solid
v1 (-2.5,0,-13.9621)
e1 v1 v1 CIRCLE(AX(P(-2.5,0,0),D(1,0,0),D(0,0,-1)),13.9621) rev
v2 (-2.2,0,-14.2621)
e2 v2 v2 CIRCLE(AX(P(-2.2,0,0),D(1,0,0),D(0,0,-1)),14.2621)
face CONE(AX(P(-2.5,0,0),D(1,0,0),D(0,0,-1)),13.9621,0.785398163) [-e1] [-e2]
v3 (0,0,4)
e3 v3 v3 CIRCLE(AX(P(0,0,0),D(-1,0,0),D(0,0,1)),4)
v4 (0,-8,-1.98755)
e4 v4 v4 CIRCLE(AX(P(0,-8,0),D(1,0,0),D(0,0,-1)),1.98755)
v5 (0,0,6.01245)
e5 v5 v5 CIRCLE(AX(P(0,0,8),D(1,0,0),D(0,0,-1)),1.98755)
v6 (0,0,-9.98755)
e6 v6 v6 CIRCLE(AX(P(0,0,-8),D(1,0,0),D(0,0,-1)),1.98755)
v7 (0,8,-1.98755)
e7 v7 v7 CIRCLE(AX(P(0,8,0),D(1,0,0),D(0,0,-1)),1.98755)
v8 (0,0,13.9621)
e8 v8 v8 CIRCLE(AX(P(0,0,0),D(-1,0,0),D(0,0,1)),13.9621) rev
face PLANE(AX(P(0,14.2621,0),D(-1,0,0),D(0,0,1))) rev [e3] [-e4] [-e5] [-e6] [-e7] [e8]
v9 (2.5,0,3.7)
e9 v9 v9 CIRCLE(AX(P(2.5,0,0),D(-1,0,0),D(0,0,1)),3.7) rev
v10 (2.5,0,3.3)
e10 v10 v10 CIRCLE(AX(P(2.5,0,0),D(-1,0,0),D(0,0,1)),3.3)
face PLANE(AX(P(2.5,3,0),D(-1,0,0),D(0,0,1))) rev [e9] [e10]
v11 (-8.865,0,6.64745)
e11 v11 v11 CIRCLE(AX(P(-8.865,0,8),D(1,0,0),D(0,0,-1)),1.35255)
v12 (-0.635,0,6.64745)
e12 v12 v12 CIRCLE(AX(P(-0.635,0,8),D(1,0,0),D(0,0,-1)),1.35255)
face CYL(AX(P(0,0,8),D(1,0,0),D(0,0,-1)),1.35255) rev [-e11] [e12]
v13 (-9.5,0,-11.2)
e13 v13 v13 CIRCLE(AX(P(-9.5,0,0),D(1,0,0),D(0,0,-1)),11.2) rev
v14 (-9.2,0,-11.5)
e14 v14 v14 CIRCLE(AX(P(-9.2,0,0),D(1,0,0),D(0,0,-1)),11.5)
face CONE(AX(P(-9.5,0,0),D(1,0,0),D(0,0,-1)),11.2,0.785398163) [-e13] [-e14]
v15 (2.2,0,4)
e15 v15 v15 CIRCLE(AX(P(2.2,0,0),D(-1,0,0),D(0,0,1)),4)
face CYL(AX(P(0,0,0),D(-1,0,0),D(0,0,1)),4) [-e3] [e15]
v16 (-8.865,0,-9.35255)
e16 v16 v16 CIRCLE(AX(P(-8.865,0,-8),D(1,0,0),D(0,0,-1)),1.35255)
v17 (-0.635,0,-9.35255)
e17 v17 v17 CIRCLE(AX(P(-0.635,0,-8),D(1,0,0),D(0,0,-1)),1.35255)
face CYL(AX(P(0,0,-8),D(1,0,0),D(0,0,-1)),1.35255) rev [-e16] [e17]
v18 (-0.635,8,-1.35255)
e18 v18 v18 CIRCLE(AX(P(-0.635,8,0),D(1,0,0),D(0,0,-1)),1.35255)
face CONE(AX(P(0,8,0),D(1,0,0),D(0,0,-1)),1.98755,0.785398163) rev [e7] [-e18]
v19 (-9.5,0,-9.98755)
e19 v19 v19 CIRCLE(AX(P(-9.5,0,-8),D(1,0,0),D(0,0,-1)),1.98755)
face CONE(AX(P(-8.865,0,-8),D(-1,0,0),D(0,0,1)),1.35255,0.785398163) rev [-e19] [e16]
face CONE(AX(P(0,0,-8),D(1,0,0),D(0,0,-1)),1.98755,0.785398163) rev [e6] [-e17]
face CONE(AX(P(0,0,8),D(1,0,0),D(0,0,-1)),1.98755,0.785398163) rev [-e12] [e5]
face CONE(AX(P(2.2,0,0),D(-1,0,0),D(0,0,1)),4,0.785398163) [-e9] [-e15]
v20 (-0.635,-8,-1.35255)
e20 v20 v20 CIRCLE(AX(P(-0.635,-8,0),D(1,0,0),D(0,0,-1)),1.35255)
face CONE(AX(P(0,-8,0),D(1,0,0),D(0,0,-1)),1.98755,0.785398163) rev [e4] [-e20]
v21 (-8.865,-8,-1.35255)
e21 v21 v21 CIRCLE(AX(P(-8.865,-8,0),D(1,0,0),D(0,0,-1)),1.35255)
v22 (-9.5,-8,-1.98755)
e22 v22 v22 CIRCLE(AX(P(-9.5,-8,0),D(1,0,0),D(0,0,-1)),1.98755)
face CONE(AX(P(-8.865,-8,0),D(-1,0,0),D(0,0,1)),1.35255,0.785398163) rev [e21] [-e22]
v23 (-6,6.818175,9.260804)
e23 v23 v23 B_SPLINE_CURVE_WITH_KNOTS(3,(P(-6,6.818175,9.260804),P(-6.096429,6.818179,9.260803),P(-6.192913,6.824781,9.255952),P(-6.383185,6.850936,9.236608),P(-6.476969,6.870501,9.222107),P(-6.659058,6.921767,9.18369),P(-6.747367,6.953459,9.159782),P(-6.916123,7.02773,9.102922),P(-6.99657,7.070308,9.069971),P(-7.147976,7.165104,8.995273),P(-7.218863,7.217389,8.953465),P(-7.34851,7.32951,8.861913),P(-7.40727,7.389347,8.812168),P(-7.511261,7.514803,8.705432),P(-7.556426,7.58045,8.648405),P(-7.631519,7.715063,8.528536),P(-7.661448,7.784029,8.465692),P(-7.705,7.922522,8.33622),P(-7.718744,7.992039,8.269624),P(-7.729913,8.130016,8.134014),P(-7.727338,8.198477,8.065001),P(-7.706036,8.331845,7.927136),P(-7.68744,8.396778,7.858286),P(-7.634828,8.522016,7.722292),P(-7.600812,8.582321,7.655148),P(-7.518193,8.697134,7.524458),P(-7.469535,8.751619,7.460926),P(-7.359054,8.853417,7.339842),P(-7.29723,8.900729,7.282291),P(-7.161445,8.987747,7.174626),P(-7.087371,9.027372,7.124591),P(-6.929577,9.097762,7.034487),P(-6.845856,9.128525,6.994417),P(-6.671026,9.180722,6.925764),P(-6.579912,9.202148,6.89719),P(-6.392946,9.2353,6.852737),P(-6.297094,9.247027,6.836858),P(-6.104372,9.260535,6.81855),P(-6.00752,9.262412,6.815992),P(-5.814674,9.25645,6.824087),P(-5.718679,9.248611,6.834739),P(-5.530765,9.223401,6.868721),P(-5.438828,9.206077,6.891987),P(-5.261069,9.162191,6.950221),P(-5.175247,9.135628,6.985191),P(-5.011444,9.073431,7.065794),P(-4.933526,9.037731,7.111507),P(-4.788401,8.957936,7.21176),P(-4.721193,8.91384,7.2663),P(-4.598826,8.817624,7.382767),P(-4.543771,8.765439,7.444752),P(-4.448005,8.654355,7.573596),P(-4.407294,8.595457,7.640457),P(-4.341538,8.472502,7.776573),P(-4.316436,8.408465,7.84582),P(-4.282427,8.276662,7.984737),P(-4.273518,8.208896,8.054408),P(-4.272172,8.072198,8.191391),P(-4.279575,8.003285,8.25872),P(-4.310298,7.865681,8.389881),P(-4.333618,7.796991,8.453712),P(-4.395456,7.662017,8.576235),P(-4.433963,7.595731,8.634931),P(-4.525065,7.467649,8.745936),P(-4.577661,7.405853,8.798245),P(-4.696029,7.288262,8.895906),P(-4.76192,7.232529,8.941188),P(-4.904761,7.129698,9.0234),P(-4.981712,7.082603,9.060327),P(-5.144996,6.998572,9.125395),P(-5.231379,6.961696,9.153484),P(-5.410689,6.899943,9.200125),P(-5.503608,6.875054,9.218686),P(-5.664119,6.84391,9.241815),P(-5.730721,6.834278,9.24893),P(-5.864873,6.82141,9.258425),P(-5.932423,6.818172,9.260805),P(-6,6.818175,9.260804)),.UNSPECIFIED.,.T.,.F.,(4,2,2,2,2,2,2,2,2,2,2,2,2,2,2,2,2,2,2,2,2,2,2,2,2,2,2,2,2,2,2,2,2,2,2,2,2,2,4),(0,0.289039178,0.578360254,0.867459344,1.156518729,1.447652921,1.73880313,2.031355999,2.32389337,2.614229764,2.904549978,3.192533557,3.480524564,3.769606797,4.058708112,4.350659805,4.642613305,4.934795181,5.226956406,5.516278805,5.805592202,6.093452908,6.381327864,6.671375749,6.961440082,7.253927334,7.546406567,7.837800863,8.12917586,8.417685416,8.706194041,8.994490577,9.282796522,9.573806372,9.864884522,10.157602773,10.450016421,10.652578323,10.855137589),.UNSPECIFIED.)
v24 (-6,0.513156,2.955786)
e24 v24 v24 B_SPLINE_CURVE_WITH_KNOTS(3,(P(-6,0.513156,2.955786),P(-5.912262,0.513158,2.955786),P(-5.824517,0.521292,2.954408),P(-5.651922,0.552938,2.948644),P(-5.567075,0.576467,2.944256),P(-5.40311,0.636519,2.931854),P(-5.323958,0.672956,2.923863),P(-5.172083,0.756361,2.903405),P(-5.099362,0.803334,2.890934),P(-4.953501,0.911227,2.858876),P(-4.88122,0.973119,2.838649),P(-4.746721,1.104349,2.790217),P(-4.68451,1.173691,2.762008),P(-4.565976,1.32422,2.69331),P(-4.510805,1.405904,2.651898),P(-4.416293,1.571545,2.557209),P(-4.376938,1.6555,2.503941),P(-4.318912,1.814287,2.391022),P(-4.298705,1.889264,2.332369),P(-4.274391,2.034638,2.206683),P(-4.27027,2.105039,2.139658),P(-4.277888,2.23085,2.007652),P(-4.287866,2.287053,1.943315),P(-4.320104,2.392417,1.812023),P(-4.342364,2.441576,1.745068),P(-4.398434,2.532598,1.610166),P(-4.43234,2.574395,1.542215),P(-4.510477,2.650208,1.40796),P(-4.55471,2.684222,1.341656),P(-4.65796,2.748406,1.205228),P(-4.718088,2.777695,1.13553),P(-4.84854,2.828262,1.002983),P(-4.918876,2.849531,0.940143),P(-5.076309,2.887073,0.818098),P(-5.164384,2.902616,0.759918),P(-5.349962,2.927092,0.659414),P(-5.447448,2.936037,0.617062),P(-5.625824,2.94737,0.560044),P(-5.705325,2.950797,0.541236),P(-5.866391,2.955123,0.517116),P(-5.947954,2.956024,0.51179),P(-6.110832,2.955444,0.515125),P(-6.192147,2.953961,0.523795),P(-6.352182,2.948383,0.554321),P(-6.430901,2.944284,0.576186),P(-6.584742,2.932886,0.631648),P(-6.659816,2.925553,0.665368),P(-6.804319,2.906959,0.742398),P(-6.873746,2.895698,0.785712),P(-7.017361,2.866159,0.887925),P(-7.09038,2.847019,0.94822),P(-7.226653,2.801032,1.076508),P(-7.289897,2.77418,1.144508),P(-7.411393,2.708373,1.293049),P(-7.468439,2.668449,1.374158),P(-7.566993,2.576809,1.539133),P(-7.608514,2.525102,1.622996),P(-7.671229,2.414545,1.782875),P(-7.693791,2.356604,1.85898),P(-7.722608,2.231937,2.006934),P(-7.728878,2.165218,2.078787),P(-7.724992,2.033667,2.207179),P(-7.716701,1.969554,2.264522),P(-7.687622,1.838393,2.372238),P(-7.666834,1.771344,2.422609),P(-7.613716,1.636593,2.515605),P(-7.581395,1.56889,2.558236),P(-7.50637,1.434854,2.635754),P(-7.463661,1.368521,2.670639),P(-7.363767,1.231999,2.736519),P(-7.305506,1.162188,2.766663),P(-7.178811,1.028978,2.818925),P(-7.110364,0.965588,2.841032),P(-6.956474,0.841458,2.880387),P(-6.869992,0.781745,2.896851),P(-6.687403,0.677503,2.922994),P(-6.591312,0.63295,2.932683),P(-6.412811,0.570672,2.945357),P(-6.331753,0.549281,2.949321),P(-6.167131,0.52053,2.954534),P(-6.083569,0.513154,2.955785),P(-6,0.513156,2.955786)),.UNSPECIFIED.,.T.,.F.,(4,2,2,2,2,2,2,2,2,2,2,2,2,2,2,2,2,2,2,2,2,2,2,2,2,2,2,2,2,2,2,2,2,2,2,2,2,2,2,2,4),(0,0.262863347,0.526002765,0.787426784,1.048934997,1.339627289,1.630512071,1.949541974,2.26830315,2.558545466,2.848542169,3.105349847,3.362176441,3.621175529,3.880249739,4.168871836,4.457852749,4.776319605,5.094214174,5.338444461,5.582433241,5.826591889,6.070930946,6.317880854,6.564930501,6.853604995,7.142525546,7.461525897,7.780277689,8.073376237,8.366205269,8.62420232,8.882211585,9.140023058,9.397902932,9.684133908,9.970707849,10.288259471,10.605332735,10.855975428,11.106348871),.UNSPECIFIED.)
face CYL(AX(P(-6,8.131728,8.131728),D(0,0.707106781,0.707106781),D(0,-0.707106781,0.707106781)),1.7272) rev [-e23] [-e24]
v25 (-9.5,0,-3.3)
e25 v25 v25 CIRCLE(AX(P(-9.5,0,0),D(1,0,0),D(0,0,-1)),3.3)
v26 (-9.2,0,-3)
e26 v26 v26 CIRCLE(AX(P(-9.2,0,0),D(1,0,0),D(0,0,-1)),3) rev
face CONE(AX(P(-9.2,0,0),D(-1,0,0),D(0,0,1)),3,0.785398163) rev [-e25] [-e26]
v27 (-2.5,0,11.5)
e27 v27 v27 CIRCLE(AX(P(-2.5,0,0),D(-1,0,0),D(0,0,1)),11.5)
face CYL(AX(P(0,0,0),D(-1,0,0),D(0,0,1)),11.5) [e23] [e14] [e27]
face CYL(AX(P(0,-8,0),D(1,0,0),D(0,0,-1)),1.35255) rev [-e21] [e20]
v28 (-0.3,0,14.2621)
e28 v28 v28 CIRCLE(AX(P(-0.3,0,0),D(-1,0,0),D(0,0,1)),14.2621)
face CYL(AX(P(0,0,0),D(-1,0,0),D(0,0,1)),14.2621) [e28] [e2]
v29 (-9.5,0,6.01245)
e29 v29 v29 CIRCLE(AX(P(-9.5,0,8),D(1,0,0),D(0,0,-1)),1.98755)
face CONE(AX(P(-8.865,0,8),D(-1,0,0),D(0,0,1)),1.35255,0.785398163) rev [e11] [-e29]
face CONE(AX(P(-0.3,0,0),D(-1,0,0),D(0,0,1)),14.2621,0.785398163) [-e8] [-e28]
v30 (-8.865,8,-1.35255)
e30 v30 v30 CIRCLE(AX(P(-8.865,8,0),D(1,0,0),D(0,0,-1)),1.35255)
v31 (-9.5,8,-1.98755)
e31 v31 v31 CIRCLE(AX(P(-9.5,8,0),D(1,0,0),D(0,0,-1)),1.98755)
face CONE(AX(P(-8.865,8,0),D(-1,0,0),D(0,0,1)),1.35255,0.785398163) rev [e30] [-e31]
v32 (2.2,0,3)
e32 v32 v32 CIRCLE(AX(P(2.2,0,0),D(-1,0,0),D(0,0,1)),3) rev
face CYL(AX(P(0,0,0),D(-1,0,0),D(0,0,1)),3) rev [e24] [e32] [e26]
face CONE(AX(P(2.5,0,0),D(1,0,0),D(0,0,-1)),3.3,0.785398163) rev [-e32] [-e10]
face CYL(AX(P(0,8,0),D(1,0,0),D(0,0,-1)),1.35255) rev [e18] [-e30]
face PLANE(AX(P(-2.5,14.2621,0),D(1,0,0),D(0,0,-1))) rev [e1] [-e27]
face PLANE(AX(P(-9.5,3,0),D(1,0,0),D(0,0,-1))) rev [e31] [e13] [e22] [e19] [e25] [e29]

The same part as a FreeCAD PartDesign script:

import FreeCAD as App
import Part
import Sketcher

V = App.Vector
Q = App.Units.Quantity


def edges_at(feature, points):
    """Names of the edges that pass closest to the given points."""
    edges = feature.Shape.Edges
    near = lambda p: min(range(len(edges)), key=lambda i: edges[i].distToShape(Part.Vertex(*p))[0])
    return sorted({f"Edge{near(p) + 1}" for p in points})

doc = App.newDocument("Part")
params = doc.addObject("Spreadsheet::Sheet", "Params")
for row, (alias, value) in enumerate([
    ("sketch1_width", "12 mm"),
    ("sketch1_width2", "7 mm"),
    ("sketch1_height", "1 mm"),
    ("sketch1_height2", "8.5 mm"),
    ("revolution_angle", "360 deg"),
    ("sketch2_width", "9.5 mm"),
    ("sketch2_width2", "8.23 mm"),
    ("groove_angle", "360 deg"),
    ("linearpattern_pitch", "11.313708 mm"),
    ("linearpattern2_pitch", "11.313708 mm"),
    ("linearpattern3_pitch", "16 mm"),
    ("sketch3_diameter", "2.5 mm"),
    ("pad1_length", "1.5 mm"),
    ("hole_diameter", "3.4544 mm"),
    ("hole_depth", "10.708 mm"),
    ("chamfer_size", "0.3 mm"),
], start=1):
    params.set(f"A{row}", alias)
    params.set(f"B{row}", "=" + value)
    params.setAlias(f"B{row}", alias)

body = doc.addObject("PartDesign::Body", "Body")

# Sketch on XY plane
sketch1 = doc.addObject("Sketcher::SketchObject", "Sketch")
body.addObject(sketch1)
sketch1.AttachmentSupport = (doc.XY_Plane, [""])
sketch1.MapMode = "FlatFace"
sketch1.addGeometry([
    Part.LineSegment(V(-9.5, 3, 0), V(2.5, 3, 0)),  # 0
    Part.LineSegment(V(2.5, 3, 0), V(2.5, 4, 0)),  # 1
    Part.LineSegment(V(2.5, 4, 0), V(0, 4, 0)),  # 2
    Part.LineSegment(V(0, 4, 0), V(0, 14.3, 0)),  # 3
    Part.LineSegment(V(0, 14.3, 0), V(-2.5, 14.3, 0)),  # 4
    Part.LineSegment(V(-2.5, 14.3, 0), V(-2.5, 11.5, 0)),  # 5
    Part.LineSegment(V(-2.5, 11.5, 0), V(-9.5, 11.5, 0)),  # 6
    Part.LineSegment(V(-9.5, 11.5, 0), V(-9.5, 3, 0)),  # 7
], False)
sketch1.addConstraint([
    Sketcher.Constraint("Coincident", 0, 2, 1, 1),
    Sketcher.Constraint("Coincident", 1, 2, 2, 1),
    Sketcher.Constraint("Coincident", 2, 2, 3, 1),
    Sketcher.Constraint("Coincident", 3, 2, 4, 1),
    Sketcher.Constraint("Coincident", 4, 2, 5, 1),
    Sketcher.Constraint("Coincident", 5, 2, 6, 1),
    Sketcher.Constraint("Coincident", 6, 2, 7, 1),
    Sketcher.Constraint("Coincident", 7, 2, 0, 1),
    Sketcher.Constraint("Horizontal", 0),
    Sketcher.Constraint("Vertical", 1),
    Sketcher.Constraint("Horizontal", 2),
    Sketcher.Constraint("Vertical", 3),
    Sketcher.Constraint("Horizontal", 4),
    Sketcher.Constraint("Vertical", 5),
    Sketcher.Constraint("Horizontal", 6),
    Sketcher.Constraint("Vertical", 7),
    Sketcher.Constraint("PointOnObject", 2, 2, -2),
    Sketcher.Constraint("Equal", 2, 4),
    Sketcher.Constraint("DistanceX", 0, 1, 0, 2, Q("12 mm")),
    Sketcher.Constraint("DistanceX", 6, 2, 6, 1, Q("7 mm")),
    Sketcher.Constraint("DistanceY", 1, 1, 1, 2, Q("1 mm")),
    Sketcher.Constraint("DistanceY", 7, 2, 7, 1, Q("8.5 mm")),
    Sketcher.Constraint("DistanceY", -1, 1, 0, 2, Q("3 mm")),
    Sketcher.Constraint("DistanceY", 3, 1, 3, 2, Q("10.2621 mm")),
])
sketch1.setExpression("Constraints[18]", "Params.sketch1_width")
sketch1.setExpression("Constraints[19]", "Params.sketch1_width2")
sketch1.setExpression("Constraints[20]", "Params.sketch1_height")
sketch1.setExpression("Constraints[21]", "Params.sketch1_height2")
revolution = doc.addObject("PartDesign::Revolution", "Revolution")
body.addObject(revolution)
revolution.Profile = sketch1
revolution.ReferenceAxis = (sketch1, ["H_Axis"])
revolution.setExpression("Angle", "Params.revolution_angle")

# Sketch on XZ plane
sketch2 = doc.addObject("Sketcher::SketchObject", "Sketch001")
body.addObject(sketch2)
sketch2.AttachmentSupport = (doc.XZ_Plane, [""])
sketch2.MapMode = "FlatFace"
sketch2.addGeometry([
    Part.LineSegment(V(-9.5, 8, 0), V(0, 8, 0)),  # 0
    Part.LineSegment(V(0, 8, 0), V(0, 6, 0)),  # 1
    Part.LineSegment(V(0, 6, 0), V(-0.6, 6.6, 0)),  # 2
    Part.LineSegment(V(-0.6, 6.6, 0), V(-8.9, 6.6, 0)),  # 3
    Part.LineSegment(V(-8.9, 6.6, 0), V(-9.5, 6, 0)),  # 4
    Part.LineSegment(V(-9.5, 6, 0), V(-9.5, 8, 0)),  # 5
], False)
sketch2.addGeometry(Part.LineSegment(V(0, 8, 0), V(-9.5, 8, 0)), True)  # axis
sketch2.addConstraint([
    Sketcher.Constraint("Coincident", 0, 2, 1, 1),
    Sketcher.Constraint("Coincident", 1, 2, 2, 1),
    Sketcher.Constraint("Coincident", 2, 2, 3, 1),
    Sketcher.Constraint("Coincident", 3, 2, 4, 1),
    Sketcher.Constraint("Coincident", 4, 2, 5, 1),
    Sketcher.Constraint("Coincident", 5, 2, 0, 1),
    Sketcher.Constraint("Horizontal", 0),
    Sketcher.Constraint("Vertical", 1),
    Sketcher.Constraint("Horizontal", 3),
    Sketcher.Constraint("Vertical", 5),
    Sketcher.Constraint("Horizontal", 6),
    Sketcher.Constraint("Coincident", 6, 1, 0, 2),
    Sketcher.Constraint("PointOnObject", 0, 2, -2),
    Sketcher.Constraint("Perpendicular", 2, 4),
    Sketcher.Constraint("Horizontal", 1, 2, 4, 2),
    Sketcher.Constraint("Vertical", 4, 2, 6, 2),
    Sketcher.Constraint("Equal", 2, 4),
    Sketcher.Constraint("DistanceX", 0, 1, 0, 2, Q("9.5 mm")),
    Sketcher.Constraint("DistanceY", -1, 1, 0, 2, Q("8 mm")),
    Sketcher.Constraint("DistanceX", 3, 2, 3, 1, Q("8.23 mm")),
    Sketcher.Constraint("DistanceY", 1, 2, 1, 1, Q("1.98755 mm")),
])
sketch2.setExpression("Constraints[17]", "Params.sketch2_width")
sketch2.setExpression("Constraints[19]", "Params.sketch2_width2")
groove = doc.addObject("PartDesign::Groove", "Groove")
body.addObject(groove)
groove.Profile = sketch2
groove.ReferenceAxis = (sketch2, ["Axis0"])
groove.setExpression("Angle", "Params.groove_angle")
doc.recompute()

datumline = doc.addObject("PartDesign::Line", "DatumLine")
body.addObject(datumline)
datumline.Placement = App.Placement(V(0, 0, 0), App.Rotation(V(0, 0, 1), V(0, 0.707106781, -0.707106781)))
linearpattern = doc.addObject("PartDesign::LinearPattern", "LinearPattern")
body.addObject(linearpattern)
linearpattern.Originals = [groove]
linearpattern.Direction = (datumline, [""])
linearpattern.Mode = "offset"
linearpattern.setExpression("Offset", "Params.linearpattern_pitch")
linearpattern.Occurrences = 2
body.Tip = linearpattern
doc.recompute()

datumline2 = doc.addObject("PartDesign::Line", "DatumLine001")
body.addObject(datumline2)
datumline2.Placement = App.Placement(V(0, 0, 0), App.Rotation(V(0, 0, 1), V(0, -0.707106781, -0.707106781)))
linearpattern2 = doc.addObject("PartDesign::LinearPattern", "LinearPattern001")
body.addObject(linearpattern2)
linearpattern2.Originals = [groove]
linearpattern2.Direction = (datumline2, [""])
linearpattern2.Mode = "offset"
linearpattern2.setExpression("Offset", "Params.linearpattern2_pitch")
linearpattern2.Occurrences = 2
body.Tip = linearpattern2
doc.recompute()

linearpattern3 = doc.addObject("PartDesign::LinearPattern", "LinearPattern002")
body.addObject(linearpattern3)
linearpattern3.Originals = [groove]
linearpattern3.Direction = (doc.Z_Axis, [""])
linearpattern3.Mode = "offset"
linearpattern3.setExpression("Offset", "Params.linearpattern3_pitch")
linearpattern3.Occurrences = 2
linearpattern3.Reversed = True
body.Tip = linearpattern3

# Sketch on an angled plane
sketch3 = doc.addObject("Sketcher::SketchObject", "Sketch002")
body.addObject(sketch3)
sketch3.Placement = App.Placement(V(0, 7.071068, 7.071068), App.Rotation(V(-1, 0, 0), V(0, -0.707106781, 0.707106781), V(0, 0.707106781, 0.707106781), "ZXY"))
sketch3.addGeometry(Part.Circle(V(6, 0, 0), V(0, 0, 1), 1.2), False)
sketch3.addConstraint([
    Sketcher.Constraint("PointOnObject", 0, 3, -1),
    Sketcher.Constraint("Diameter", 0, Q("2.5 mm")),
    Sketcher.Constraint("DistanceX", -1, 1, 0, 3, Q("6 mm")),
])
sketch3.setExpression("Constraints[1]", "Params.sketch3_diameter")
pad1 = doc.addObject("PartDesign::Pad", "Pad")
body.addObject(pad1)
pad1.Profile = sketch3
pad1.setExpression("Length", "Params.pad1_length")

# Sketch on an angled plane
sketch4 = doc.addObject("Sketcher::SketchObject", "Sketch003")
body.addObject(sketch4)
sketch4.Placement = App.Placement(V(0, 8.131728, 8.131728), App.Rotation(V(1, 0, 0), V(0, 0.707106781, -0.707106781), V(0, 0.707106781, 0.707106781), "ZXY"))
sketch4.addGeometry(Part.Circle(V(-6, 0, 0), V(0, 0, 1), 1.7), False)
sketch4.addConstraint([
    Sketcher.Constraint("PointOnObject", 0, 3, -1),
    Sketcher.Constraint("DistanceX", 0, 3, -1, 1, Q("6 mm")),
    Sketcher.Constraint("Diameter", 0, Q("3.4544 mm")),
])
doc.recompute()
hole = doc.addObject("PartDesign::Hole", "Hole")
body.addObject(hole)
hole.Profile = sketch4
hole.ThreadType = "None"
hole.setExpression("Diameter", "Params.hole_diameter")
hole.DepthType = "Dimension"
hole.setExpression("Depth", "Params.hole_depth")
hole.DrillPoint = "Angled"
hole.DrillPointAngle = 118
doc.recompute()

chamfer = doc.addObject("PartDesign::Chamfer", "Chamfer")
body.addObject(chamfer)
chamfer.Base = (hole, edges_at(hole, [
    (-9.5, -3, 0),
    (2.5, -3, 0),
    (2.5, -4, 0),
    (0, -14.262, 0),
    (-2.5, -14.262, 0),
    (-9.5, -11.5, 0),
]))
chamfer.setExpression("Size", "Params.chamfer_size")

doc.recompute()
